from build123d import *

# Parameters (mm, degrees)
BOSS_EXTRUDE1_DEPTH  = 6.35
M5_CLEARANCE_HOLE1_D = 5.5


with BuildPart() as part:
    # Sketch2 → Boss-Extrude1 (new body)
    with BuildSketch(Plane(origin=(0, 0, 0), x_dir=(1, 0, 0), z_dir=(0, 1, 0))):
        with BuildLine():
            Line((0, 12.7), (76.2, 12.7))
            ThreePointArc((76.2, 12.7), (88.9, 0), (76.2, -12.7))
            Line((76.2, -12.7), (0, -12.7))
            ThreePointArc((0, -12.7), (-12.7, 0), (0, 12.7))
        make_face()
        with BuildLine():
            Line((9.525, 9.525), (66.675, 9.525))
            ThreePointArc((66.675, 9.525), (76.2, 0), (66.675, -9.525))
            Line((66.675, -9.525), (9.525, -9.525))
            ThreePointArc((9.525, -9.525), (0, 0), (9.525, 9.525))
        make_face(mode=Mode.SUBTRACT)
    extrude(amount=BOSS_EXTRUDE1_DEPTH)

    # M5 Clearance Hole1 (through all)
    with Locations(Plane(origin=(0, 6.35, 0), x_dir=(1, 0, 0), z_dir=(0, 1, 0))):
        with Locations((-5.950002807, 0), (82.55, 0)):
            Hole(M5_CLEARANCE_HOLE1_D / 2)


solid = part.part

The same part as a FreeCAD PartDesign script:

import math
import FreeCAD as App
import Part
import Sketcher
Q = App.Units.Quantity

doc = App.newDocument("Part")
params = doc.addObject("Spreadsheet::Sheet", "Params")
for row, (alias, value) in enumerate([
    ("sketch1_radius", "0.5 in"),
    ("sketch1_width", "3 in"),
    ("sketch1_radius2", "0.375 in"),
    ("sketch1_width2", "2.25 in"),
    ("pad1_length", "0.25 in"),
    ("hole_diameter", "5.5 mm"),
], start=1):
    params.set(f"A{row}", alias)
    params.set(f"B{row}", "=" + value)
    params.setAlias(f"B{row}", alias)

body = doc.addObject("PartDesign::Body", "Body")

# Sketch on XZ plane
sketch1 = doc.addObject("Sketcher::SketchObject", "Sketch")
body.addObject(sketch1)
sketch1.AttachmentSupport = (doc.XZ_Plane, [""])
sketch1.MapMode = "FlatFace"
sketch1.addGeometry([
    Part.LineSegment(App.Vector(76, -13, 0), App.Vector(0, -13, 0)),  # 0
    Part.ArcOfCircle(Part.Circle(App.Vector(0, 0, 0), App.Vector(0, 0, 1), 13), math.radians(90), math.radians(270)),  # 1
    Part.LineSegment(App.Vector(0, 13, 0), App.Vector(76, 13, 0)),  # 2
    Part.ArcOfCircle(Part.Circle(App.Vector(76, 0, 0), App.Vector(0, 0, 1), 13), math.radians(-90), math.radians(90)),  # 3
    Part.LineSegment(App.Vector(10, -10, 0), App.Vector(67, -10, 0)),  # 4
    Part.ArcOfCircle(Part.Circle(App.Vector(67, 0, 0), App.Vector(0, 0, 1), 10), math.radians(-90), math.radians(90)),  # 5
    Part.LineSegment(App.Vector(67, 10, 0), App.Vector(10, 10, 0)),  # 6
    Part.ArcOfCircle(Part.Circle(App.Vector(10, 0, 0), App.Vector(0, 0, 1), 10), math.radians(90), math.radians(270)),  # 7
], False)
sketch1.addConstraint([
    Sketcher.Constraint("Tangent", 0, 2, 1, 2),
    Sketcher.Constraint("Tangent", 1, 1, 2, 1),
    Sketcher.Constraint("Tangent", 2, 2, 3, 2),
    Sketcher.Constraint("Tangent", 3, 1, 0, 1),
    Sketcher.Constraint("Tangent", 4, 2, 5, 1),
    Sketcher.Constraint("Tangent", 5, 2, 6, 1),
    Sketcher.Constraint("Tangent", 6, 2, 7, 1),
    Sketcher.Constraint("Tangent", 7, 2, 4, 1),
    Sketcher.Constraint("Horizontal", 0),
    Sketcher.Constraint("Horizontal", 2),
    Sketcher.Constraint("Horizontal", 4),
    Sketcher.Constraint("Horizontal", 6),
    Sketcher.Constraint("Coincident", 1, 3, -1, 1),
    Sketcher.Constraint("PointOnObject", 5, 3, -1),
    Sketcher.Constraint("Radius", 1, Q("0.5 in")),
    Sketcher.Constraint("DistanceX", 0, 2, 0, 1, Q("3 in")),
    Sketcher.Constraint("Radius", 5, Q("0.375 in")),
    Sketcher.Constraint("DistanceX", 4, 1, 4, 2, Q("2.25 in")),
    Sketcher.Constraint("DistanceX", -1, 1, 5, 3, Q("2.625 in")),
])
sketch1.setExpression("Constraints[14]", "Params.sketch1_radius")
sketch1.setExpression("Constraints[15]", "Params.sketch1_width")
sketch1.setExpression("Constraints[16]", "Params.sketch1_radius2")
sketch1.setExpression("Constraints[17]", "Params.sketch1_width2")
pad1 = doc.addObject("PartDesign::Pad", "Pad")
body.addObject(pad1)
pad1.Profile = sketch1
pad1.setExpression("Length", "Params.pad1_length")
pad1.Reversed = True

# Sketch on XZ plane
sketch2 = doc.addObject("Sketcher::SketchObject", "Sketch001")
body.addObject(sketch2)
sketch2.AttachmentSupport = (doc.XZ_Plane, [""])
sketch2.MapMode = "FlatFace"
sketch2.AttachmentOffset = App.Placement(App.Vector(0, 0, -0.25 * 25.4), App.Rotation())
sketch2.addGeometry([
    Part.Circle(App.Vector(-6, 0, 0), App.Vector(0, 0, 1), 2.8),
    Part.Circle(App.Vector(82.5, 0, 0), App.Vector(0, 0, 1), 2.8),
], False)
sketch2.addConstraint([
    Sketcher.Constraint("Equal", 0, 1),
    Sketcher.Constraint("PointOnObject", 0, 3, -1),
    Sketcher.Constraint("PointOnObject", 1, 3, -1),
    Sketcher.Constraint("Diameter", 0, 5.5),
    Sketcher.Constraint("DistanceX", -1, 1, 1, 3, Q("3.25 in")),
    Sketcher.Constraint("DistanceX", 0, 3, -1, 1, 5.950003),
])
doc.recompute()
hole = doc.addObject("PartDesign::Hole", "Hole")
body.addObject(hole)
hole.Profile = sketch2
hole.ThreadType = "None"
hole.setExpression("Diameter", "Params.hole_diameter")
hole.DepthType = "ThroughAll"
hole.Reversed = True

doc.recompute()
